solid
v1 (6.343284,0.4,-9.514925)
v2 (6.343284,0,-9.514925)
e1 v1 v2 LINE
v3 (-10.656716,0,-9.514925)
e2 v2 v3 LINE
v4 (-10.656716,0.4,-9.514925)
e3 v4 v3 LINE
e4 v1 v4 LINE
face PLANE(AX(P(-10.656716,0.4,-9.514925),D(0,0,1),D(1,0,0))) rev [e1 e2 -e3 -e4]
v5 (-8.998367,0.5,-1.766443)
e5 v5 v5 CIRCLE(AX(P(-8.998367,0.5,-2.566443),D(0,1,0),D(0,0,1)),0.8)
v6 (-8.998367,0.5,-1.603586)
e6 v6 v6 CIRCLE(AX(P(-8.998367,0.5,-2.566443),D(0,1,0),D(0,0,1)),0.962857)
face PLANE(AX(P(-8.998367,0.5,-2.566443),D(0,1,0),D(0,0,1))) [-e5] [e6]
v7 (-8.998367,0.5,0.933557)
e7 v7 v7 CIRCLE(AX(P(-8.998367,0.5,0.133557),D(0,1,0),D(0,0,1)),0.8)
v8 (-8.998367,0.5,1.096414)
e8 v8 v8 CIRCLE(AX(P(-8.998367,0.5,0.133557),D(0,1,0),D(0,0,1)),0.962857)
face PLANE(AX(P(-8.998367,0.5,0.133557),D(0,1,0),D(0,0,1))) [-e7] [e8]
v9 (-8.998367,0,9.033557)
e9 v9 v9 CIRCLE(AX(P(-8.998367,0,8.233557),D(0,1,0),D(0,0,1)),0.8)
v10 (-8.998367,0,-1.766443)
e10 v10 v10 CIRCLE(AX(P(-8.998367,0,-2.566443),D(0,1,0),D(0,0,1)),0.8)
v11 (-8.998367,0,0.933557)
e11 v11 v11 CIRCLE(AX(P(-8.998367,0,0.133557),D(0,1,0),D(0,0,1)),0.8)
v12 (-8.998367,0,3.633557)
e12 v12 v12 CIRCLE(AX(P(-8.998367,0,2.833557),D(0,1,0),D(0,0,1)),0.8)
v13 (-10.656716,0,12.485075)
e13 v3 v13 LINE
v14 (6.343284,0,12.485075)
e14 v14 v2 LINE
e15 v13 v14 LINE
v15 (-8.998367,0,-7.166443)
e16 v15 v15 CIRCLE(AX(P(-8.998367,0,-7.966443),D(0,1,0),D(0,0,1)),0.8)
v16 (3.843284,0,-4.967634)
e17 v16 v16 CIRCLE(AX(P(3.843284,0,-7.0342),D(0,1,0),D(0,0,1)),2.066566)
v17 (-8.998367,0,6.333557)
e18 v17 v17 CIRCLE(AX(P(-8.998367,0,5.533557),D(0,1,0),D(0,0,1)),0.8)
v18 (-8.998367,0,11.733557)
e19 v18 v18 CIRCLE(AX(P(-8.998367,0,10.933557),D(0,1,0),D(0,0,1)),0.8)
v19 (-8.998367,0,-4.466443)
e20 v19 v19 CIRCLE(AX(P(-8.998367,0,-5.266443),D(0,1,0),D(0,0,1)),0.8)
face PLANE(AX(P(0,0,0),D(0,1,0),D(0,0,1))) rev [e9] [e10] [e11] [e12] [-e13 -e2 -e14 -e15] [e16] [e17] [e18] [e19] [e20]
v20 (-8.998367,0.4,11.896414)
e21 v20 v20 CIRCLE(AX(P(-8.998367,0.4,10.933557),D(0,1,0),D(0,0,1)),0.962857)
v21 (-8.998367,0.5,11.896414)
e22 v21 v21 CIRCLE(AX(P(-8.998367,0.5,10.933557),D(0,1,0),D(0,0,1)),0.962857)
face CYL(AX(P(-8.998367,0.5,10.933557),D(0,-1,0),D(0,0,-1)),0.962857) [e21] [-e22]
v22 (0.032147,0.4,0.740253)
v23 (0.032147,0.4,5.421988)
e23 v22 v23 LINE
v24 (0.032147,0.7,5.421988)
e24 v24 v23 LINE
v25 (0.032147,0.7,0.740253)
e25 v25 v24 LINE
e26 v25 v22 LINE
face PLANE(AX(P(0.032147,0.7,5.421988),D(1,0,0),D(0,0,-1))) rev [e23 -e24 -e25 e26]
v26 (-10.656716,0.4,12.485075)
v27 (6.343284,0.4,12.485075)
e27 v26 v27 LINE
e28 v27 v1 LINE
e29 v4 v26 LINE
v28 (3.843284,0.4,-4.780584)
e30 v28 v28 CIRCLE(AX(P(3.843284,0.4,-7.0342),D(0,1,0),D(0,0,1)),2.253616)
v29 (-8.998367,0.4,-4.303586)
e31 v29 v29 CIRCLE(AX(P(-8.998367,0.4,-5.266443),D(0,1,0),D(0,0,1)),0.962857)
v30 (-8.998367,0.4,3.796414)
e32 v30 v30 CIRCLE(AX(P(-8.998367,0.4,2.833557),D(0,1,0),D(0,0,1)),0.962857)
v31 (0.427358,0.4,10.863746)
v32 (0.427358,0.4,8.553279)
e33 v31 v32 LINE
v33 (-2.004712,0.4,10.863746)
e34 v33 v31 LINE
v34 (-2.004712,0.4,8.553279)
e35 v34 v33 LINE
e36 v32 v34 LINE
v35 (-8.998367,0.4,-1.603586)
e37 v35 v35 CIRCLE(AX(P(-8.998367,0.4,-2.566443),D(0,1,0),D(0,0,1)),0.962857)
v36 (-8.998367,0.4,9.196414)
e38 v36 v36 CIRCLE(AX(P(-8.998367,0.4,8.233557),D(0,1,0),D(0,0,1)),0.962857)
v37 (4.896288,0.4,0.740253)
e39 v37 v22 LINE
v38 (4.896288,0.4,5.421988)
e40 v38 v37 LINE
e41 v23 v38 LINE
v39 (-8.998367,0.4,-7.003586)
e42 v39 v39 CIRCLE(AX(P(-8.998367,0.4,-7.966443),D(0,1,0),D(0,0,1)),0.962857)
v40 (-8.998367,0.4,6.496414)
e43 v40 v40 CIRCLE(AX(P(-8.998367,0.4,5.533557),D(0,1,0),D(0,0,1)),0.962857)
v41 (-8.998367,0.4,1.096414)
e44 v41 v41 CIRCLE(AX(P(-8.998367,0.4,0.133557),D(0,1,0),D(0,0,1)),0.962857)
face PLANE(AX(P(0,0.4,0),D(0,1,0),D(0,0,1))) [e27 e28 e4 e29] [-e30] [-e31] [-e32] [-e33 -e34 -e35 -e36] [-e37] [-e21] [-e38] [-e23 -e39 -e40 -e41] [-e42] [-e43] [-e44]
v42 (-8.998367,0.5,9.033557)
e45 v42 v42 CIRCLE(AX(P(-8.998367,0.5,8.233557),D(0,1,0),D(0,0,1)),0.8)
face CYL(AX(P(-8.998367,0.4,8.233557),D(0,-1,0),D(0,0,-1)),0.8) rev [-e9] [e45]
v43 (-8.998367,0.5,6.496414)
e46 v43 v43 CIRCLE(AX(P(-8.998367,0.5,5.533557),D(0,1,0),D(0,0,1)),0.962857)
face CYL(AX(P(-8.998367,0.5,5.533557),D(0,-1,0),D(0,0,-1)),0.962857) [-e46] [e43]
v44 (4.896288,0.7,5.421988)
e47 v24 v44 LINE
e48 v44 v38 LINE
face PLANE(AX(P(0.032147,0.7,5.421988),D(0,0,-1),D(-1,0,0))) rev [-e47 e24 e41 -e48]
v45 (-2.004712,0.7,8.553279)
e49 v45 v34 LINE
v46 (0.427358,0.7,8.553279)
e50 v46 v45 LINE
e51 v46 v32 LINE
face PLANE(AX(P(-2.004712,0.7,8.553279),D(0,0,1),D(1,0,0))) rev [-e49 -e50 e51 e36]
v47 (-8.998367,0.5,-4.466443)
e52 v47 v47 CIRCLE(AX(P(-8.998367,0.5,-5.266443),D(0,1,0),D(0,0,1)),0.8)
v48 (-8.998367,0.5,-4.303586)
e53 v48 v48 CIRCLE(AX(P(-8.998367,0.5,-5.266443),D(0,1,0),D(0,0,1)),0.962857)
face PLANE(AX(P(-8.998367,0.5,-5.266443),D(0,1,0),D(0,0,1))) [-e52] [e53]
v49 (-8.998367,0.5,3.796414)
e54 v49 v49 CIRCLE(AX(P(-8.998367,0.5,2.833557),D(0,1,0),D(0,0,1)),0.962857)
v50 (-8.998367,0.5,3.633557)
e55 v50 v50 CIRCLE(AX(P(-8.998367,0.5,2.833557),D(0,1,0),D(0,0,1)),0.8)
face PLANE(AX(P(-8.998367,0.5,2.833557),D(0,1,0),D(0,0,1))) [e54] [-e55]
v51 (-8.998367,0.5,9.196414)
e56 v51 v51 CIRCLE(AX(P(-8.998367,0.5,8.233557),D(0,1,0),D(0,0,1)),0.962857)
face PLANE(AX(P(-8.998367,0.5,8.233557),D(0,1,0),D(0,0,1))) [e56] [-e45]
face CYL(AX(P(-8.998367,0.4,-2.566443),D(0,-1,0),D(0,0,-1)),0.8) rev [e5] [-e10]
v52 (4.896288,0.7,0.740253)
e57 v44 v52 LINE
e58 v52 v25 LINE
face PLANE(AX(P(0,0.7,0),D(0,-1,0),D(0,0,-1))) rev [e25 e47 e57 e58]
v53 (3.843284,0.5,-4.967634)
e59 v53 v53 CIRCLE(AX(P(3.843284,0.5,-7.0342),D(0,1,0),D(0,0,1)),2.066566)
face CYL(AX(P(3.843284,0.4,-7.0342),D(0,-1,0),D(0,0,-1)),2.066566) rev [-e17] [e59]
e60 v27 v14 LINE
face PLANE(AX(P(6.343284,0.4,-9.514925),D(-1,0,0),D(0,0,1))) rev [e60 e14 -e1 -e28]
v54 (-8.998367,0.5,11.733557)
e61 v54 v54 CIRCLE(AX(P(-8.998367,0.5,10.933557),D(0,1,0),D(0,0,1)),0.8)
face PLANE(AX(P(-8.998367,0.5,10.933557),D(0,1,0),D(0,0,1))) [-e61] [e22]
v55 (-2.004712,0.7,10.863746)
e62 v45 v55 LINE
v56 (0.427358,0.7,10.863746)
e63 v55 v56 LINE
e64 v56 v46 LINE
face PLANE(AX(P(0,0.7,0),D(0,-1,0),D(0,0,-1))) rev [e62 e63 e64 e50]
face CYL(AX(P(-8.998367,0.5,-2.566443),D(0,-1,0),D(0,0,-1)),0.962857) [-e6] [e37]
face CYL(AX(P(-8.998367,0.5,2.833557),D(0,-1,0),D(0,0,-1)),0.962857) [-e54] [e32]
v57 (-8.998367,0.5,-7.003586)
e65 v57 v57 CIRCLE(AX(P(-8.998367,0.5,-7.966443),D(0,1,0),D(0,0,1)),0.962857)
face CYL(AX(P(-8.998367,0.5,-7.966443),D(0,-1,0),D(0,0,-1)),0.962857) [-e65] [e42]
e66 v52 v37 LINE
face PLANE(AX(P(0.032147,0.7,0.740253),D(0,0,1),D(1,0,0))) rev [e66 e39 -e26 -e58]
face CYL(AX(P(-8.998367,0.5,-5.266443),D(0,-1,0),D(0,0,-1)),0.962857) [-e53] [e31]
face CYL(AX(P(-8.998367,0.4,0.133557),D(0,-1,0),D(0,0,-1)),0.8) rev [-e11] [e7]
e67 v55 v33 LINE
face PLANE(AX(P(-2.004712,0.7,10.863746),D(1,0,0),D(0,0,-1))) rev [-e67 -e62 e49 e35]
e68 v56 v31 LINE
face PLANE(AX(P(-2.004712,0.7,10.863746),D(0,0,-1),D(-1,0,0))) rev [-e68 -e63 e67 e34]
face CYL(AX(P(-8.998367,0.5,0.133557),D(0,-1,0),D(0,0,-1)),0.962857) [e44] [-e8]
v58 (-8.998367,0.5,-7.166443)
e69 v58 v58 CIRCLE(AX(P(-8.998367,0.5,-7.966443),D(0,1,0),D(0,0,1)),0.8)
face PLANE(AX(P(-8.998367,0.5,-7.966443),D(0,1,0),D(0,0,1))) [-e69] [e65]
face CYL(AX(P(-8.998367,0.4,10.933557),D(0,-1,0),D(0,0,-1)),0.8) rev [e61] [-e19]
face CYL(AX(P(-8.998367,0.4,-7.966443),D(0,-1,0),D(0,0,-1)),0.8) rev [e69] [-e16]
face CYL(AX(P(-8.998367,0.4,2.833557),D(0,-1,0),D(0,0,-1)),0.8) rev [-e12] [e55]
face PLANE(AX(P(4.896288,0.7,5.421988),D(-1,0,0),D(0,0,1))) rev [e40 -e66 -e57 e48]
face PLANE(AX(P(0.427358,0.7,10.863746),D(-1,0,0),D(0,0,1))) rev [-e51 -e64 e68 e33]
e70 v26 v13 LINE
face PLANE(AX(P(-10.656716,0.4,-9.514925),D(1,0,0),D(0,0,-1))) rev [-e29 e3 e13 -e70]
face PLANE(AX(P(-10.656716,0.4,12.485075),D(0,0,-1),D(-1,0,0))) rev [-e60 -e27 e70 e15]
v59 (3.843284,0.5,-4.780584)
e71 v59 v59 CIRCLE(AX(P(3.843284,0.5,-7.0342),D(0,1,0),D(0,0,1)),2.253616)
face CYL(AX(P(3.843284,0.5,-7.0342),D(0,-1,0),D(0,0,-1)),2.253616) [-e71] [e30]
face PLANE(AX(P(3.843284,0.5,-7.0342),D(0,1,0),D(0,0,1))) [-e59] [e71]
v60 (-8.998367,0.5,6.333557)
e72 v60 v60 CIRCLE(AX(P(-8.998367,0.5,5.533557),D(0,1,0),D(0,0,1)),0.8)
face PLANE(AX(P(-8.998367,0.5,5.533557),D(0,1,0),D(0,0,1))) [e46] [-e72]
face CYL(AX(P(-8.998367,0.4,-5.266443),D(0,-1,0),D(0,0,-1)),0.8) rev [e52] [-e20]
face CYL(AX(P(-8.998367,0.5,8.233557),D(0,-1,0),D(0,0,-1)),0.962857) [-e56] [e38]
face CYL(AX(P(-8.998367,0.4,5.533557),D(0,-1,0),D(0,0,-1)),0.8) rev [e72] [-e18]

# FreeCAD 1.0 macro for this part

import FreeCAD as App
import Part
import Sketcher

V = App.Vector
Q = App.Units.Quantity


def add_polygon(sketch, points):
    """Adds a closed chain of lines whose ends are joined by coincident constraints."""
    first, n = sketch.GeometryCount, len(points)
    for a, b in zip(points, points[1:] + points[:1]):
        sketch.addGeometry(Part.LineSegment(App.Vector(*a, 0), App.Vector(*b, 0)), False)
    for i in range(n):
        sketch.addConstraint(Sketcher.Constraint("Coincident", first + i, 2, first + (i + 1) % n, 1))

doc = App.newDocument("Part")
body = doc.addObject("PartDesign::Body", "Body")

# Sketch on XZ plane
sketch1 = doc.addObject("Sketcher::SketchObject", "Sketch")
body.addObject(sketch1)
sketch1.AttachmentSupport = (doc.XZ_Plane, [""])
sketch1.MapMode = "FlatFace"
add_polygon(sketch1, [(-10.7, -9.5), (-10.7, 12.5), (6.3, 12.5), (6.3, -9.5)])  # lines 0-3
sketch1.addGeometry(Part.Circle(V(-9, 10.9, 0), V(0, 0, 1), 0.8), False)  # 4
sketch1.addGeometry(Part.Circle(V(-9, 8.2, 0), V(0, 0, 1), 0.8), False)  # 5
sketch1.addGeometry(Part.Circle(V(-9, 5.5, 0), V(0, 0, 1), 0.8), False)  # 6
sketch1.addGeometry(Part.Circle(V(-9, 2.8, 0), V(0, 0, 1), 0.8), False)  # 7
sketch1.addGeometry(Part.Circle(V(-9, 0.1, 0), V(0, 0, 1), 0.8), False)  # 8
sketch1.addGeometry(Part.Circle(V(-9, -2.6, 0), V(0, 0, 1), 0.8), False)  # 9
sketch1.addGeometry(Part.Circle(V(-9, -5.3, 0), V(0, 0, 1), 0.8), False)  # 10
sketch1.addGeometry(Part.Circle(V(-9, -8, 0), V(0, 0, 1), 0.8), False)  # 11
sketch1.addGeometry(Part.Circle(V(3.8, -7, 0), V(0, 0, 1), 2.1), False)  # 12
sketch1.addConstraint(Sketcher.Constraint("Vertical", 0))
sketch1.addConstraint(Sketcher.Constraint("Horizontal", 1))
sketch1.addConstraint(Sketcher.Constraint("Vertical", 2))
sketch1.addConstraint(Sketcher.Constraint("Horizontal", 3))
sketch1.addConstraint(Sketcher.Constraint("Equal", 4, 5))
sketch1.addConstraint(Sketcher.Constraint("Equal", 5, 6))
sketch1.addConstraint(Sketcher.Constraint("Equal", 6, 7))
sketch1.addConstraint(Sketcher.Constraint("Equal", 7, 8))
sketch1.addConstraint(Sketcher.Constraint("Equal", 8, 9))
sketch1.addConstraint(Sketcher.Constraint("Equal", 9, 10))
sketch1.addConstraint(Sketcher.Constraint("Equal", 10, 11))
sketch1.addConstraint(Sketcher.Constraint("Vertical", 4, 3, 5, 3))
sketch1.addConstraint(Sketcher.Constraint("Vertical", 5, 3, 6, 3))
sketch1.addConstraint(Sketcher.Constraint("Vertical", 6, 3, 7, 3))
sketch1.addConstraint(Sketcher.Constraint("Vertical", 7, 3, 8, 3))
sketch1.addConstraint(Sketcher.Constraint("Vertical", 8, 3, 9, 3))
sketch1.addConstraint(Sketcher.Constraint("Vertical", 9, 3, 10, 3))
sketch1.addConstraint(Sketcher.Constraint("Vertical", 10, 3, 11, 3))
sketch1.addConstraint(Sketcher.Constraint("Diameter", 4, Q("1.6 mm")))
sketch1.addConstraint(Sketcher.Constraint("DistanceX", 1, 1, 1, 2, Q("17 mm")))
sketch1.addConstraint(Sketcher.Constraint("DistanceY", 0, 1, 0, 2, Q("22 mm")))
sketch1.addConstraint(Sketcher.Constraint("DistanceY", 5, 3, 4, 3, Q("2.7 mm")))
sketch1.addConstraint(Sketcher.Constraint("DistanceY", 6, 3, 5, 3, Q("2.7 mm")))
sketch1.addConstraint(Sketcher.Constraint("DistanceY", 7, 3, 6, 3, Q("2.7 mm")))
sketch1.addConstraint(Sketcher.Constraint("DistanceY", 8, 3, 7, 3, Q("2.7 mm")))
sketch1.addConstraint(Sketcher.Constraint("DistanceY", 9, 3, 8, 3, Q("2.7 mm")))
sketch1.addConstraint(Sketcher.Constraint("DistanceY", 10, 3, 9, 3, Q("2.7 mm")))
sketch1.addConstraint(Sketcher.Constraint("DistanceY", 11, 3, 10, 3, Q("2.7 mm")))
sketch1.addConstraint(Sketcher.Constraint("DistanceX", 12, 3, 2, 2, Q("2.5 mm")))
sketch1.addConstraint(Sketcher.Constraint("Diameter", 12, Q("4.133133 mm")))
sketch1.addConstraint(Sketcher.Constraint("DistanceY", 12, 3, -1, 1, Q("7.0342 mm")))
sketch1.addConstraint(Sketcher.Constraint("DistanceX", 11, 3, 12, 3, Q("12.84165 mm")))
sketch1.addConstraint(Sketcher.Constraint("DistanceX", 4, 3, -1, 1, Q("8.998367 mm")))
sketch1.addConstraint(Sketcher.Constraint("DistanceY", -1, 1, 4, 3, Q("10.933557 mm")))
sketch1.addConstraint(Sketcher.Constraint("DistanceY", -1, 1, 0, 2, Q("12.485075 mm")))
pad1 = doc.addObject("PartDesign::Pad", "Pad")
body.addObject(pad1)
pad1.Profile = sketch1
pad1.Length = 0.4
pad1.Reversed = True

# Sketch on XZ plane
sketch2 = doc.addObject("Sketcher::SketchObject", "Sketch001")
body.addObject(sketch2)
sketch2.AttachmentSupport = (doc.XZ_Plane, [""])
sketch2.MapMode = "FlatFace"
sketch2.AttachmentOffset = App.Placement(V(0, 0, -0.4), App.Rotation())
sketch2.addGeometry(Part.Circle(V(3.8, -7, 0), V(0, 0, 1), 2.3), False)
sketch2.addGeometry(Part.Circle(V(3.8, -7, 0), V(0, 0, 1), 2.1), False)
sketch2.addGeometry(Part.Circle(V(-9, -8, 0), V(0, 0, 1), 1), False)
sketch2.addGeometry(Part.Circle(V(-9, -8, 0), V(0, 0, 1), 0.8), False)
sketch2.addGeometry(Part.Circle(V(-9, -5.3, 0), V(0, 0, 1), 1), False)
sketch2.addGeometry(Part.Circle(V(-9, -5.3, 0), V(0, 0, 1), 0.8), False)
sketch2.addGeometry(Part.Circle(V(-9, -2.6, 0), V(0, 0, 1), 1), False)
sketch2.addGeometry(Part.Circle(V(-9, -2.6, 0), V(0, 0, 1), 0.8), False)
sketch2.addGeometry(Part.Circle(V(-9, 0.1, 0), V(0, 0, 1), 1), False)
sketch2.addGeometry(Part.Circle(V(-9, 0.1, 0), V(0, 0, 1), 0.8), False)
sketch2.addGeometry(Part.Circle(V(-9, 2.8, 0), V(0, 0, 1), 1), False)
sketch2.addGeometry(Part.Circle(V(-9, 2.8, 0), V(0, 0, 1), 0.8), False)
sketch2.addGeometry(Part.Circle(V(-9, 5.5, 0), V(0, 0, 1), 1), False)
sketch2.addGeometry(Part.Circle(V(-9, 5.5, 0), V(0, 0, 1), 0.8), False)
sketch2.addGeometry(Part.Circle(V(-9, 8.2, 0), V(0, 0, 1), 1), False)
sketch2.addGeometry(Part.Circle(V(-9, 8.2, 0), V(0, 0, 1), 0.8), False)
sketch2.addGeometry(Part.Circle(V(-9, 10.9, 0), V(0, 0, 1), 1), False)
sketch2.addGeometry(Part.Circle(V(-9, 10.9, 0), V(0, 0, 1), 0.8), False)
sketch2.addConstraint(Sketcher.Constraint("Coincident", 1, 3, 0, 3))
sketch2.addConstraint(Sketcher.Constraint("Coincident", 3, 3, 2, 3))
sketch2.addConstraint(Sketcher.Constraint("Coincident", 5, 3, 4, 3))
sketch2.addConstraint(Sketcher.Constraint("Coincident", 7, 3, 6, 3))
sketch2.addConstraint(Sketcher.Constraint("Coincident", 9, 3, 8, 3))
sketch2.addConstraint(Sketcher.Constraint("Coincident", 11, 3, 10, 3))
sketch2.addConstraint(Sketcher.Constraint("Coincident", 13, 3, 12, 3))
sketch2.addConstraint(Sketcher.Constraint("Coincident", 15, 3, 14, 3))
sketch2.addConstraint(Sketcher.Constraint("Coincident", 17, 3, 16, 3))
sketch2.addConstraint(Sketcher.Constraint("Equal", 2, 4))
sketch2.addConstraint(Sketcher.Constraint("Equal", 3, 5))
sketch2.addConstraint(Sketcher.Constraint("Equal", 4, 6))
sketch2.addConstraint(Sketcher.Constraint("Equal", 5, 7))
sketch2.addConstraint(Sketcher.Constraint("Equal", 6, 8))
sketch2.addConstraint(Sketcher.Constraint("Equal", 7, 9))
sketch2.addConstraint(Sketcher.Constraint("Equal", 8, 10))
sketch2.addConstraint(Sketcher.Constraint("Equal", 9, 11))
sketch2.addConstraint(Sketcher.Constraint("Equal", 10, 12))
sketch2.addConstraint(Sketcher.Constraint("Equal", 11, 13))
sketch2.addConstraint(Sketcher.Constraint("Equal", 12, 14))
sketch2.addConstraint(Sketcher.Constraint("Equal", 13, 15))
sketch2.addConstraint(Sketcher.Constraint("Equal", 14, 16))
sketch2.addConstraint(Sketcher.Constraint("Equal", 15, 17))
sketch2.addConstraint(Sketcher.Constraint("Vertical", 3, 3, 4, 3))
sketch2.addConstraint(Sketcher.Constraint("Vertical", 5, 3, 6, 3))
sketch2.addConstraint(Sketcher.Constraint("Vertical", 7, 3, 8, 3))
sketch2.addConstraint(Sketcher.Constraint("Vertical", 9, 3, 10, 3))
sketch2.addConstraint(Sketcher.Constraint("Vertical", 11, 3, 12, 3))
sketch2.addConstraint(Sketcher.Constraint("Vertical", 13, 3, 14, 3))
sketch2.addConstraint(Sketcher.Constraint("Vertical", 15, 3, 16, 3))
sketch2.addConstraint(Sketcher.Constraint("Diameter", 3, Q("1.6 mm")))
sketch2.addConstraint(Sketcher.Constraint("DistanceY", 2, 3, 4, 3, Q("2.7 mm")))
sketch2.addConstraint(Sketcher.Constraint("DistanceY", 4, 3, 6, 3, Q("2.7 mm")))
sketch2.addConstraint(Sketcher.Constraint("DistanceY", 6, 3, 8, 3, Q("2.7 mm")))
sketch2.addConstraint(Sketcher.Constraint("DistanceY", 8, 3, 10, 3, Q("2.7 mm")))
sketch2.addConstraint(Sketcher.Constraint("DistanceY", 10, 3, 12, 3, Q("2.7 mm")))
sketch2.addConstraint(Sketcher.Constraint("DistanceY", 12, 3, 14, 3, Q("2.7 mm")))
sketch2.addConstraint(Sketcher.Constraint("DistanceY", 14, 3, 16, 3, Q("2.7 mm")))
sketch2.addConstraint(Sketcher.Constraint("Diameter", 0, Q("4.507232 mm")))
sketch2.addConstraint(Sketcher.Constraint("Diameter", 1, Q("4.133133 mm")))
sketch2.addConstraint(Sketcher.Constraint("Diameter", 2, Q("1.925713 mm")))
sketch2.addConstraint(Sketcher.Constraint("DistanceY", 0, 3, -1, 1, Q("7.0342 mm")))
sketch2.addConstraint(Sketcher.Constraint("DistanceX", 2, 3, 0, 3, Q("12.84165 mm")))
sketch2.addConstraint(Sketcher.Constraint("DistanceX", -1, 1, 0, 3, Q("3.843284 mm")))
sketch2.addConstraint(Sketcher.Constraint("DistanceY", 2, 3, -1, 1, Q("7.966443 mm")))
pad2 = doc.addObject("PartDesign::Pad", "Pad001")
body.addObject(pad2)
pad2.Profile = sketch2
pad2.Length = 0.1
pad2.Reversed = True

# Sketch on XZ plane
sketch3 = doc.addObject("Sketcher::SketchObject", "Sketch002")
body.addObject(sketch3)
sketch3.AttachmentSupport = (doc.XZ_Plane, [""])
sketch3.MapMode = "FlatFace"
sketch3.AttachmentOffset = App.Placement(V(0, 0, -0.4), App.Rotation())
add_polygon(sketch3, [(-2, 8.6), (-2, 10.9), (0.4, 10.9), (0.4, 8.6)])  # lines 0-3
add_polygon(sketch3, [(0, 0.7), (0, 5.4), (4.9, 5.4), (4.9, 0.7)])  # lines 4-7
sketch3.addConstraint(Sketcher.Constraint("Vertical", 0))
sketch3.addConstraint(Sketcher.Constraint("Horizontal", 1))
sketch3.addConstraint(Sketcher.Constraint("Vertical", 2))
sketch3.addConstraint(Sketcher.Constraint("Horizontal", 3))
sketch3.addConstraint(Sketcher.Constraint("Vertical", 4))
sketch3.addConstraint(Sketcher.Constraint("Horizontal", 5))
sketch3.addConstraint(Sketcher.Constraint("Vertical", 6))
sketch3.addConstraint(Sketcher.Constraint("Horizontal", 7))
sketch3.addConstraint(Sketcher.Constraint("DistanceX", 3, 2, 5, 2, Q("6.901 mm")))
sketch3.addConstraint(Sketcher.Constraint("DistanceX", 1, 1, 1, 2, Q("2.43207 mm")))
sketch3.addConstraint(Sketcher.Constraint("DistanceX", 5, 1, 5, 2, Q("4.864141 mm")))
sketch3.addConstraint(Sketcher.Constraint("DistanceY", 0, 1, 0, 2, Q("2.310467 mm")))
sketch3.addConstraint(Sketcher.Constraint("DistanceY", 4, 1, 4, 2, Q("4.681735 mm")))
sketch3.addConstraint(Sketcher.Constraint("DistanceX", -1, 1, 1, 2, Q("0.427358 mm")))
sketch3.addConstraint(Sketcher.Constraint("DistanceY", -1, 1, 2, 2, Q("8.553279 mm")))
sketch3.addConstraint(Sketcher.Constraint("DistanceY", -1, 1, 4, 2, Q("5.421988 mm")))
pad3 = doc.addObject("PartDesign::Pad", "Pad002")
body.addObject(pad3)
pad3.Profile = sketch3
pad3.Length = 0.3
pad3.Reversed = True

doc.recompute()
